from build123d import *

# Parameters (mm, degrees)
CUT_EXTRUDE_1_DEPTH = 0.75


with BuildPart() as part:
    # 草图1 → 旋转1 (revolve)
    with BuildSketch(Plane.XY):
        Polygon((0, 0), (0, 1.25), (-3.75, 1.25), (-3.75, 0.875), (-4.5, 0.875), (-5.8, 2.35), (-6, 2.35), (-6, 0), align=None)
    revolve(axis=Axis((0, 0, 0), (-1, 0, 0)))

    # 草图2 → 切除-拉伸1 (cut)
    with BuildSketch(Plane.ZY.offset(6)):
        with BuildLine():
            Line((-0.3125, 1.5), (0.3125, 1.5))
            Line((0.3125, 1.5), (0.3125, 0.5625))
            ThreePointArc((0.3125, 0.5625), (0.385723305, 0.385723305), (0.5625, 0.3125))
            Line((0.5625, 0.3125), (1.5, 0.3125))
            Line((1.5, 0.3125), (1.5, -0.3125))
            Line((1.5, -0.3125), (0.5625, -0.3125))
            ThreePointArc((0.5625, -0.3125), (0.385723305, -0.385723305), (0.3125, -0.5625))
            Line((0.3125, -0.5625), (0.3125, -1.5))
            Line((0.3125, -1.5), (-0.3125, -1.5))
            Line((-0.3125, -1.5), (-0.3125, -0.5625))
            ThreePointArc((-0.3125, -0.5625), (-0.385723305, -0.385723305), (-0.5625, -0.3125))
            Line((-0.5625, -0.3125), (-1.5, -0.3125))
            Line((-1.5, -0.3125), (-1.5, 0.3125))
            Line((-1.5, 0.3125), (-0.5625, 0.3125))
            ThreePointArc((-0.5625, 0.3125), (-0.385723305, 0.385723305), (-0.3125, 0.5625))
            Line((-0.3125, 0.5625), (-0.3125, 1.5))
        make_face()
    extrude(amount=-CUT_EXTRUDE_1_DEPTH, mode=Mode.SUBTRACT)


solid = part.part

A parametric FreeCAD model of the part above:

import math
import FreeCAD as App
import Part
import Sketcher
Q = App.Units.Quantity

doc = App.newDocument("Part")
body = doc.addObject("PartDesign::Body", "Body")

sketch1 = body.newObject("Sketcher::SketchObject", "Sketch")
sketch1.AttachmentSupport = (doc.getObject("XY_Plane"), [""])
sketch1.MapMode = "FlatFace"
sketch1.addGeometry([
    Part.LineSegment(App.Vector(0, 0, 0), App.Vector(0, 1.25, 0)),
    Part.LineSegment(App.Vector(0, 1.25, 0), App.Vector(-3.75, 1.25, 0)),
    Part.LineSegment(App.Vector(-3.75, 1.25, 0), App.Vector(-3.75, 0.88, 0)),
    Part.LineSegment(App.Vector(-3.75, 0.88, 0), App.Vector(-4.5, 0.88, 0)),
    Part.LineSegment(App.Vector(-4.5, 0.88, 0), App.Vector(-5.8, 2.35, 0)),
    Part.LineSegment(App.Vector(-5.8, 2.35, 0), App.Vector(-6, 2.35, 0)),
    Part.LineSegment(App.Vector(-6, 2.35, 0), App.Vector(-6, 0, 0)),
    Part.LineSegment(App.Vector(-6, 0, 0), App.Vector(0, 0, 0)),
], False)
sketch1.addConstraint([
    Sketcher.Constraint("Coincident", 0, 2, 1, 1),
    Sketcher.Constraint("Coincident", 1, 2, 2, 1),
    Sketcher.Constraint("Coincident", 2, 2, 3, 1),
    Sketcher.Constraint("Coincident", 3, 2, 4, 1),
    Sketcher.Constraint("Coincident", 4, 2, 5, 1),
    Sketcher.Constraint("Coincident", 5, 2, 6, 1),
    Sketcher.Constraint("Coincident", 6, 2, 7, 1),
    Sketcher.Constraint("Coincident", 7, 2, 0, 1),
    Sketcher.Constraint("Vertical", 0),
    Sketcher.Constraint("Horizontal", 1),
    Sketcher.Constraint("Vertical", 2),
    Sketcher.Constraint("Horizontal", 3),
    Sketcher.Constraint("Horizontal", 5),
    Sketcher.Constraint("Vertical", 6),
    Sketcher.Constraint("Horizontal", 7),
    Sketcher.Constraint("Coincident", 7, 2, -1, 1),
    Sketcher.Constraint("DistanceX", 7, 1, 7, 2, Q("6 mm")),
    Sketcher.Constraint("DistanceX", 5, 2, 5, 1, Q("0.2 mm")),
    Sketcher.Constraint("DistanceX", 1, 2, 1, 1, Q("3.75 mm")),
    Sketcher.Constraint("DistanceX", 3, 2, 3, 1, Q("0.75 mm")),
    Sketcher.Constraint("DistanceY", 0, 1, 0, 2, Q("1.25 mm")),
    Sketcher.Constraint("DistanceY", 6, 2, 6, 1, Q("2.35 mm")),
    Sketcher.Constraint("DistanceY", 2, 2, 2, 1, Q("0.375 mm")),
])
revolution = body.newObject("PartDesign::Revolution", "Revolution")
revolution.Profile = sketch1
revolution.ReferenceAxis = (sketch1, ["H_Axis"])
revolution.Angle = 360

sketch2 = body.newObject("Sketcher::SketchObject", "Sketch001")
sketch2.AttachmentSupport = (doc.getObject("YZ_Plane"), [""])
sketch2.MapMode = "FlatFace"
sketch2.AttachmentOffset = App.Placement(App.Vector(0, 0, -6), App.Rotation())
sketch2.addGeometry([
    Part.LineSegment(App.Vector(1.5, 0.31, 0), App.Vector(1.5, -0.31, 0)),
    Part.LineSegment(App.Vector(1.5, -0.31, 0), App.Vector(0.56, -0.31, 0)),
    Part.ArcOfCircle(Part.Circle(App.Vector(0.56, -0.56, 0), App.Vector(0, 0, 1), 0.25), math.radians(90), math.radians(180)),
    Part.LineSegment(App.Vector(0.31, -0.56, 0), App.Vector(0.31, -1.5, 0)),
    Part.LineSegment(App.Vector(0.31, -1.5, 0), App.Vector(-0.31, -1.5, 0)),
    Part.LineSegment(App.Vector(-0.31, -1.5, 0), App.Vector(-0.31, -0.56, 0)),
    Part.ArcOfCircle(Part.Circle(App.Vector(-0.56, -0.56, 0), App.Vector(0, 0, 1), 0.25), math.radians(0), math.radians(90)),
    Part.LineSegment(App.Vector(-0.56, -0.31, 0), App.Vector(-1.5, -0.31, 0)),
    Part.LineSegment(App.Vector(-1.5, -0.31, 0), App.Vector(-1.5, 0.31, 0)),
    Part.LineSegment(App.Vector(-1.5, 0.31, 0), App.Vector(-0.56, 0.31, 0)),
    Part.ArcOfCircle(Part.Circle(App.Vector(-0.56, 0.56, 0), App.Vector(0, 0, 1), 0.25), math.radians(-90), math.radians(0)),
    Part.LineSegment(App.Vector(-0.31, 0.56, 0), App.Vector(-0.31, 1.5, 0)),
    Part.LineSegment(App.Vector(-0.31, 1.5, 0), App.Vector(0.31, 1.5, 0)),
    Part.LineSegment(App.Vector(0.31, 1.5, 0), App.Vector(0.31, 0.56, 0)),
    Part.ArcOfCircle(Part.Circle(App.Vector(0.56, 0.56, 0), App.Vector(0, 0, 1), 0.25), math.radians(-180), math.radians(-90)),
    Part.LineSegment(App.Vector(0.56, 0.31, 0), App.Vector(1.5, 0.31, 0)),
], False)
sketch2.addConstraint([
    Sketcher.Constraint("Coincident", 0, 2, 1, 1),
    Sketcher.Constraint("Tangent", 1, 2, 2, 1),
    Sketcher.Constraint("Tangent", 2, 2, 3, 1),
    Sketcher.Constraint("Coincident", 3, 2, 4, 1),
    Sketcher.Constraint("Coincident", 4, 2, 5, 1),
    Sketcher.Constraint("Tangent", 5, 2, 6, 1),
    Sketcher.Constraint("Tangent", 6, 2, 7, 1),
    Sketcher.Constraint("Coincident", 7, 2, 8, 1),
    Sketcher.Constraint("Coincident", 8, 2, 9, 1),
    Sketcher.Constraint("Tangent", 9, 2, 10, 1),
    Sketcher.Constraint("Tangent", 10, 2, 11, 1),
    Sketcher.Constraint("Coincident", 11, 2, 12, 1),
    Sketcher.Constraint("Coincident", 12, 2, 13, 1),
    Sketcher.Constraint("Tangent", 13, 2, 14, 1),
    Sketcher.Constraint("Tangent", 14, 2, 15, 1),
    Sketcher.Constraint("Coincident", 15, 2, 0, 1),
    Sketcher.Constraint("Vertical", 0),
    Sketcher.Constraint("Horizontal", 1),
    Sketcher.Constraint("Vertical", 3),
    Sketcher.Constraint("Horizontal", 4),
    Sketcher.Constraint("Vertical", 5),
    Sketcher.Constraint("Horizontal", 7),
    Sketcher.Constraint("Vertical", 8),
    Sketcher.Constraint("Horizontal", 9),
    Sketcher.Constraint("Vertical", 11),
    Sketcher.Constraint("Horizontal", 12),
    Sketcher.Constraint("Vertical", 13),
    Sketcher.Constraint("Horizontal", 15),
    Sketcher.Constraint("Equal", 2, 6),
    Sketcher.Constraint("Equal", 6, 10),
    Sketcher.Constraint("Equal", 10, 14),
    Sketcher.Constraint("Symmetric", 2, 3, 10, 3, -1, 1),
    Sketcher.Constraint("Symmetric", 6, 3, 14, 3, -1, 1),
    Sketcher.Constraint("Symmetric", 2, 3, 6, 3, -2),
    Sketcher.Constraint("Equal", 1, 7),
    Sketcher.Constraint("Equal", 12, 0),
    Sketcher.Constraint("Equal", 15, 3),
    Sketcher.Constraint("Equal", 5, 11),
    Sketcher.Constraint("Radius", 2, Q("0.25 mm")),
    Sketcher.Constraint("DistanceX", -1, 1, 0, 2, Q("1.5 mm")),
    Sketcher.Constraint("DistanceX", 4, 2, 4, 1, Q("0.625 mm")),
])
pocket1 = body.newObject("PartDesign::Pocket", "Pocket")
pocket1.Profile = sketch2
pocket1.Length = 0.75
pocket1.Reversed = True

doc.recompute()
